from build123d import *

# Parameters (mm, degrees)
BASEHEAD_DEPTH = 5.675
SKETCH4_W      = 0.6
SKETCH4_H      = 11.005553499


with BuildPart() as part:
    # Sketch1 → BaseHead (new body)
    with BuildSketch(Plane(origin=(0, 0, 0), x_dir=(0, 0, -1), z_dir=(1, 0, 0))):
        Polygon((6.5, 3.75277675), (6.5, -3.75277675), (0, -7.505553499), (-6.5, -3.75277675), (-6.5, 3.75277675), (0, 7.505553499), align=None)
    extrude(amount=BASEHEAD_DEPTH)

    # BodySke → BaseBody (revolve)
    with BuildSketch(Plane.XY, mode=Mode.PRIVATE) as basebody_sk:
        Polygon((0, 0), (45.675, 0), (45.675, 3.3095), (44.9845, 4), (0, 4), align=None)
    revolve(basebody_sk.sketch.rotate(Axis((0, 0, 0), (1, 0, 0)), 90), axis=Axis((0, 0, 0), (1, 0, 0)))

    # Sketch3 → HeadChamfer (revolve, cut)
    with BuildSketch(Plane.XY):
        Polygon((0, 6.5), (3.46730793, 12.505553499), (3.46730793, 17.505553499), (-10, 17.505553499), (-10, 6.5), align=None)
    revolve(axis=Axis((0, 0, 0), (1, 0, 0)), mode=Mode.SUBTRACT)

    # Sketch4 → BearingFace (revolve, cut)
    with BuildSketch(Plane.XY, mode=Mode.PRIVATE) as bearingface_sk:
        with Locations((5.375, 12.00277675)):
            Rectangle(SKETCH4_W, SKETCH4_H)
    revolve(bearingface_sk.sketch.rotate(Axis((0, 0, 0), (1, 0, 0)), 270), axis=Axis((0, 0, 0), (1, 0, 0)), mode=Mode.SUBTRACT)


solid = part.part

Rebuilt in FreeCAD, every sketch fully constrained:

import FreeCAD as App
import Part
import Sketcher

V = App.Vector
Q = App.Units.Quantity

doc = App.newDocument("Part")
body = doc.addObject("PartDesign::Body", "Body")

# Sketch on YZ plane
sketch1 = doc.addObject("Sketcher::SketchObject", "Sketch")
body.addObject(sketch1)
sketch1.AttachmentSupport = (doc.YZ_Plane, [""])
sketch1.MapMode = "FlatFace"
sketch1.addGeometry([
    Part.LineSegment(V(-3.752777, -6.5, 0), V(3.752777, -6.5, 0)),  # 0
    Part.LineSegment(V(3.752777, -6.5, 0), V(7.505553, 0, 0)),  # 1
    Part.LineSegment(V(7.505553, 0, 0), V(3.752777, 6.5, 0)),  # 2
    Part.LineSegment(V(3.752777, 6.5, 0), V(-3.752777, 6.5, 0)),  # 3
    Part.LineSegment(V(-3.752777, 6.5, 0), V(-7.505553, 0, 0)),  # 4
    Part.LineSegment(V(-7.505553, 0, 0), V(-3.752777, -6.5, 0)),  # 5
], False)
sketch1.addConstraint([
    Sketcher.Constraint("Coincident", 0, 2, 1, 1),
    Sketcher.Constraint("Coincident", 1, 2, 2, 1),
    Sketcher.Constraint("Coincident", 2, 2, 3, 1),
    Sketcher.Constraint("Coincident", 3, 2, 4, 1),
    Sketcher.Constraint("Coincident", 4, 2, 5, 1),
    Sketcher.Constraint("Coincident", 5, 2, 0, 1),
    Sketcher.Constraint("Horizontal", 0),
    Sketcher.Constraint("Horizontal", 3),
    Sketcher.Constraint("Symmetric", 0, 2, 3, 2, -1, 1),
    Sketcher.Constraint("Symmetric", 1, 2, 4, 2, -1, 1),
    Sketcher.Constraint("PointOnObject", 1, 2, -1),
    Sketcher.Constraint("Parallel", 2, 5),
    Sketcher.Constraint("Vertical", 0, 2, 2, 2),
    Sketcher.Constraint("Angle", 1, Q("60 deg")),
    Sketcher.Constraint("DistanceY", 0, 2, 2, 2, Q("13 mm")),
    Sketcher.Constraint("DistanceX", 0, 1, 0, 2, Q("7.505554 mm")),
])
pad1 = doc.addObject("PartDesign::Pad", "Pad")
body.addObject(pad1)
pad1.Profile = sketch1
pad1.Length = 5.675

# Sketch on XY plane
sketch2 = doc.addObject("Sketcher::SketchObject", "Sketch001")
body.addObject(sketch2)
sketch2.AttachmentSupport = (doc.XY_Plane, [""])
sketch2.MapMode = "FlatFace"
sketch2.addGeometry([
    Part.LineSegment(V(0, 0, 0), V(45.675, 0, 0)),  # 0
    Part.LineSegment(V(45.675, 0, 0), V(45.675, 3.3095, 0)),  # 1
    Part.LineSegment(V(45.675, 3.3095, 0), V(44.9845, 4, 0)),  # 2
    Part.LineSegment(V(44.9845, 4, 0), V(0, 4, 0)),  # 3
    Part.LineSegment(V(0, 4, 0), V(0, 0, 0)),  # 4
], False)
sketch2.addConstraint([
    Sketcher.Constraint("Coincident", 0, 2, 1, 1),
    Sketcher.Constraint("Coincident", 1, 2, 2, 1),
    Sketcher.Constraint("Coincident", 2, 2, 3, 1),
    Sketcher.Constraint("Coincident", 3, 2, 4, 1),
    Sketcher.Constraint("Coincident", 4, 2, 0, 1),
    Sketcher.Constraint("Horizontal", 0),
    Sketcher.Constraint("Vertical", 1),
    Sketcher.Constraint("Horizontal", 3),
    Sketcher.Constraint("Vertical", 4),
    Sketcher.Constraint("Coincident", 4, 2, -1, 1),
    Sketcher.Constraint("DistanceY", 4, 2, 4, 1, Q("4 mm")),
    Sketcher.Constraint("Angle", 2, Q("135 deg")),
    Sketcher.Constraint("DistanceX", 0, 1, 0, 2, Q("45.675 mm")),
    Sketcher.Constraint("DistanceX", 3, 2, 3, 1, Q("44.9845 mm")),
])
revolution = doc.addObject("PartDesign::Revolution", "Revolution")
body.addObject(revolution)
revolution.Profile = sketch2
revolution.ReferenceAxis = (sketch2, ["H_Axis"])
revolution.Angle = 360

# Sketch on XY plane
sketch3 = doc.addObject("Sketcher::SketchObject", "Sketch002")
body.addObject(sketch3)
sketch3.AttachmentSupport = (doc.XY_Plane, [""])
sketch3.MapMode = "FlatFace"
sketch3.addGeometry([
    Part.LineSegment(V(0, 6.5, 0), V(3.467308, 12.505553, 0)),  # 0
    Part.LineSegment(V(3.467308, 12.505553, 0), V(3.467308, 17.505553, 0)),  # 1
    Part.LineSegment(V(3.467308, 17.505553, 0), V(-10, 17.505553, 0)),  # 2
    Part.LineSegment(V(-10, 17.505553, 0), V(-10, 6.5, 0)),  # 3
    Part.LineSegment(V(-10, 6.5, 0), V(0, 6.5, 0)),  # 4
], False)
sketch3.addConstraint([
    Sketcher.Constraint("Coincident", 0, 2, 1, 1),
    Sketcher.Constraint("Coincident", 1, 2, 2, 1),
    Sketcher.Constraint("Coincident", 2, 2, 3, 1),
    Sketcher.Constraint("Coincident", 3, 2, 4, 1),
    Sketcher.Constraint("Coincident", 4, 2, 0, 1),
    Sketcher.Constraint("Vertical", 1),
    Sketcher.Constraint("Horizontal", 2),
    Sketcher.Constraint("Vertical", 3),
    Sketcher.Constraint("Horizontal", 4),
    Sketcher.Constraint("PointOnObject", 4, 2, -2),
    Sketcher.Constraint("DistanceX", 4, 1, 4, 2, Q("10 mm")),
    Sketcher.Constraint("DistanceY", 1, 1, 1, 2, Q("5 mm")),
    Sketcher.Constraint("Angle", 0, Q("60 deg")),
    Sketcher.Constraint("DistanceY", -1, 1, 3, 2, Q("6.5 mm")),
    Sketcher.Constraint("DistanceX", 2, 2, 2, 1, Q("13.467308 mm")),
])
groove = doc.addObject("PartDesign::Groove", "Groove")
body.addObject(groove)
groove.Profile = sketch3
groove.ReferenceAxis = (sketch3, ["H_Axis"])
groove.Angle = 360

# Sketch on XY plane
sketch4 = doc.addObject("Sketcher::SketchObject", "Sketch003")
body.addObject(sketch4)
sketch4.AttachmentSupport = (doc.XY_Plane, [""])
sketch4.MapMode = "FlatFace"
sketch4.addGeometry([
    Part.LineSegment(V(5.075, 17.505553, 0), V(5.075, 6.5, 0)),
    Part.LineSegment(V(5.075, 6.5, 0), V(5.675, 6.5, 0)),
    Part.LineSegment(V(5.675, 6.5, 0), V(5.675, 17.505553, 0)),
    Part.LineSegment(V(5.675, 17.505553, 0), V(5.075, 17.505553, 0)),
], False)
sketch4.addConstraint([
    Sketcher.Constraint("Coincident", 0, 2, 1, 1),
    Sketcher.Constraint("Coincident", 1, 2, 2, 1),
    Sketcher.Constraint("Coincident", 2, 2, 3, 1),
    Sketcher.Constraint("Coincident", 3, 2, 0, 1),
    Sketcher.Constraint("Vertical", 0),
    Sketcher.Constraint("Horizontal", 1),
    Sketcher.Constraint("Vertical", 2),
    Sketcher.Constraint("Horizontal", 3),
    Sketcher.Constraint("DistanceX", 1, 1, 1, 2, Q("0.6 mm")),
    Sketcher.Constraint("DistanceY", -1, 1, 0, 2, Q("6.5 mm")),
    Sketcher.Constraint("DistanceX", -1, 1, 0, 2, Q("5.075 mm")),
    Sketcher.Constraint("DistanceY", 0, 2, 0, 1, Q("11.005553 mm")),
])
groove2 = doc.addObject("PartDesign::Groove", "Groove001")
body.addObject(groove2)
groove2.Profile = sketch4
groove2.ReferenceAxis = (sketch4, ["H_Axis"])
groove2.Angle = 360

doc.recompute()
